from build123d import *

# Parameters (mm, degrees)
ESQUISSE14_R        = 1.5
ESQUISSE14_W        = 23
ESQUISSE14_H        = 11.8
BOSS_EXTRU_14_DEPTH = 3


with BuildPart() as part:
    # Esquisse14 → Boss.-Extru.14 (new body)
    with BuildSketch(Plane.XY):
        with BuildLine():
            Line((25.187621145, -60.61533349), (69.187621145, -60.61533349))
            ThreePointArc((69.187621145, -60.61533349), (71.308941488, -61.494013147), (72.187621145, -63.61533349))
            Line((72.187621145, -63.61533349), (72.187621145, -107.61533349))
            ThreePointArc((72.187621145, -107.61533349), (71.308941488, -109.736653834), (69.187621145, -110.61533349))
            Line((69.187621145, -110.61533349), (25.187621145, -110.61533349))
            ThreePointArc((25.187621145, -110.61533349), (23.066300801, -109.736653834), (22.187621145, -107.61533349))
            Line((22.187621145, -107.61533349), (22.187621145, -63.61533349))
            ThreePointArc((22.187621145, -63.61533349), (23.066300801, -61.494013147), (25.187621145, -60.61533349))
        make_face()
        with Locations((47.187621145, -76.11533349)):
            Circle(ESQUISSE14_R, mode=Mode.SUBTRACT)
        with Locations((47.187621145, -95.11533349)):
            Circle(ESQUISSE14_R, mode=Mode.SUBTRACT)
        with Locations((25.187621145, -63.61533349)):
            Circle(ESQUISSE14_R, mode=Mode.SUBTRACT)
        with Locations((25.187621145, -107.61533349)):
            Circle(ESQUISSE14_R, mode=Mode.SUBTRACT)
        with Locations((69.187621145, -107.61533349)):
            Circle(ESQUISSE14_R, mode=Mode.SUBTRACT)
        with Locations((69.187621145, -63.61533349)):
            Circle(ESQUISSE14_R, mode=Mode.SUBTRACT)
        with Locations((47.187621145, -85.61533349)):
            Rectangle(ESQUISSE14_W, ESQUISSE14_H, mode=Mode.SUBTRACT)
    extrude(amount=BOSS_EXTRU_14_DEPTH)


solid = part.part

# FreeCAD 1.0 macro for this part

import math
import FreeCAD as App
import Part
import Sketcher

V = App.Vector

doc = App.newDocument("Part")
body = doc.addObject("PartDesign::Body", "Body")

sketch1 = body.newObject("Sketcher::SketchObject", "Sketch")
sketch1.AttachmentSupport = (doc.getObject("XY_Plane"), [""])
sketch1.MapMode = "FlatFace"
sketch1.addGeometry(Part.LineSegment(V(69.2, -60.6, 0), V(25.2, -60.6, 0)), False)
sketch1.addGeometry(Part.ArcOfCircle(Part.Circle(V(25.2, -63.6, 0), V(0, 0, 1), 3), math.radians(90), math.radians(180)), False)
sketch1.addGeometry(Part.LineSegment(V(22.2, -63.6, 0), V(22.2, -107.6, 0)), False)
sketch1.addGeometry(Part.ArcOfCircle(Part.Circle(V(25.2, -107.6, 0), V(0, 0, 1), 3), math.radians(180), math.radians(270)), False)
sketch1.addGeometry(Part.LineSegment(V(25.2, -110.6, 0), V(69.2, -110.6, 0)), False)
sketch1.addGeometry(Part.ArcOfCircle(Part.Circle(V(69.2, -107.6, 0), V(0, 0, 1), 3), math.radians(-90), math.radians(0)), False)
sketch1.addGeometry(Part.LineSegment(V(72.2, -107.6, 0), V(72.2, -63.6, 0)), False)
sketch1.addGeometry(Part.ArcOfCircle(Part.Circle(V(69.2, -63.6, 0), V(0, 0, 1), 3), math.radians(0), math.radians(90)), False)
sketch1.addGeometry(Part.Circle(V(69.2, -107.6, 0), V(0, 0, 1), 1.5), False)
sketch1.addGeometry(Part.Circle(V(47.2, -95.1, 0), V(0, 0, 1), 1.5), False)
sketch1.addGeometry(Part.Circle(V(25.2, -107.6, 0), V(0, 0, 1), 1.5), False)
sketch1.addGeometry(Part.LineSegment(V(35.7, -91.5, 0), V(35.7, -79.7, 0)), False)
sketch1.addGeometry(Part.LineSegment(V(35.7, -79.7, 0), V(58.7, -79.7, 0)), False)
sketch1.addGeometry(Part.LineSegment(V(58.7, -79.7, 0), V(58.7, -91.5, 0)), False)
sketch1.addGeometry(Part.LineSegment(V(58.7, -91.5, 0), V(35.7, -91.5, 0)), False)
sketch1.addGeometry(Part.Circle(V(47.2, -76.1, 0), V(0, 0, 1), 1.5), False)
sketch1.addGeometry(Part.Circle(V(69.2, -63.6, 0), V(0, 0, 1), 1.5), False)
sketch1.addGeometry(Part.Circle(V(25.2, -63.6, 0), V(0, 0, 1), 1.5), False)
sketch1.addConstraint(Sketcher.Constraint("Tangent", 0, 2, 1, 1))
sketch1.addConstraint(Sketcher.Constraint("Tangent", 1, 2, 2, 1))
sketch1.addConstraint(Sketcher.Constraint("Tangent", 2, 2, 3, 1))
sketch1.addConstraint(Sketcher.Constraint("Tangent", 3, 2, 4, 1))
sketch1.addConstraint(Sketcher.Constraint("Tangent", 4, 2, 5, 1))
sketch1.addConstraint(Sketcher.Constraint("Tangent", 5, 2, 6, 1))
sketch1.addConstraint(Sketcher.Constraint("Tangent", 6, 2, 7, 1))
sketch1.addConstraint(Sketcher.Constraint("Tangent", 7, 2, 0, 1))
sketch1.addConstraint(Sketcher.Constraint("Coincident", 11, 2, 12, 1))
sketch1.addConstraint(Sketcher.Constraint("Coincident", 12, 2, 13, 1))
sketch1.addConstraint(Sketcher.Constraint("Coincident", 13, 2, 14, 1))
sketch1.addConstraint(Sketcher.Constraint("Coincident", 14, 2, 11, 1))
sketch1.addConstraint(Sketcher.Constraint("Horizontal", 0))
sketch1.addConstraint(Sketcher.Constraint("Vertical", 2))
sketch1.addConstraint(Sketcher.Constraint("Horizontal", 4))
sketch1.addConstraint(Sketcher.Constraint("Vertical", 6))
sketch1.addConstraint(Sketcher.Constraint("Vertical", 11))
sketch1.addConstraint(Sketcher.Constraint("Horizontal", 12))
sketch1.addConstraint(Sketcher.Constraint("Vertical", 13))
sketch1.addConstraint(Sketcher.Constraint("Horizontal", 14))
sketch1.addConstraint(Sketcher.Constraint("Coincident", 8, 3, 5, 3))
sketch1.addConstraint(Sketcher.Constraint("Coincident", 10, 3, 3, 3))
sketch1.addConstraint(Sketcher.Constraint("Coincident", 16, 3, 7, 3))
sketch1.addConstraint(Sketcher.Constraint("Coincident", 17, 3, 1, 3))
sketch1.addConstraint(Sketcher.Constraint("Equal", 1, 3))
sketch1.addConstraint(Sketcher.Constraint("Equal", 3, 5))
sketch1.addConstraint(Sketcher.Constraint("Equal", 5, 7))
sketch1.addConstraint(Sketcher.Constraint("Equal", 8, 9))
sketch1.addConstraint(Sketcher.Constraint("Equal", 9, 10))
sketch1.addConstraint(Sketcher.Constraint("Equal", 10, 15))
sketch1.addConstraint(Sketcher.Constraint("Equal", 15, 16))
sketch1.addConstraint(Sketcher.Constraint("Equal", 16, 17))
sketch1.addConstraint(Sketcher.Constraint("Vertical", 9, 3, 15, 3))
sketch1.addConstraint(Sketcher.Constraint("Equal", 4, 2))
sketch1.addConstraint(Sketcher.Constraint("Diameter", 8, 3.0))
sketch1.addConstraint(Sketcher.Constraint("Radius", 1, 3.0))
sketch1.addConstraint(Sketcher.Constraint("DistanceX", 0, 2, 0, 1, 44.0))
sketch1.addConstraint(Sketcher.Constraint("DistanceX", 12, 1, 12, 2, 23.0))
sketch1.addConstraint(Sketcher.Constraint("DistanceY", 11, 1, 11, 2, 11.8))
sketch1.addConstraint(Sketcher.Constraint("DistanceX", 9, 3, 5, 3, 22.0))
sketch1.addConstraint(Sketcher.Constraint("DistanceY", 9, 3, 15, 3, 19.0))
sketch1.addConstraint(Sketcher.Constraint("DistanceY", 5, 3, 9, 3, 12.5))
sketch1.addConstraint(Sketcher.Constraint("DistanceX", 11, 2, 15, 3, 11.5))
sketch1.addConstraint(Sketcher.Constraint("DistanceY", 11, 2, 15, 3, 3.6))
sketch1.addConstraint(Sketcher.Constraint("DistanceX", -1, 1, 1, 3, 25.187621))
sketch1.addConstraint(Sketcher.Constraint("DistanceY", 1, 3, -1, 1, 63.615333))
pad1 = body.newObject("PartDesign::Pad", "Pad")
pad1.Profile = sketch1
pad1.Length = 3

doc.recompute()
